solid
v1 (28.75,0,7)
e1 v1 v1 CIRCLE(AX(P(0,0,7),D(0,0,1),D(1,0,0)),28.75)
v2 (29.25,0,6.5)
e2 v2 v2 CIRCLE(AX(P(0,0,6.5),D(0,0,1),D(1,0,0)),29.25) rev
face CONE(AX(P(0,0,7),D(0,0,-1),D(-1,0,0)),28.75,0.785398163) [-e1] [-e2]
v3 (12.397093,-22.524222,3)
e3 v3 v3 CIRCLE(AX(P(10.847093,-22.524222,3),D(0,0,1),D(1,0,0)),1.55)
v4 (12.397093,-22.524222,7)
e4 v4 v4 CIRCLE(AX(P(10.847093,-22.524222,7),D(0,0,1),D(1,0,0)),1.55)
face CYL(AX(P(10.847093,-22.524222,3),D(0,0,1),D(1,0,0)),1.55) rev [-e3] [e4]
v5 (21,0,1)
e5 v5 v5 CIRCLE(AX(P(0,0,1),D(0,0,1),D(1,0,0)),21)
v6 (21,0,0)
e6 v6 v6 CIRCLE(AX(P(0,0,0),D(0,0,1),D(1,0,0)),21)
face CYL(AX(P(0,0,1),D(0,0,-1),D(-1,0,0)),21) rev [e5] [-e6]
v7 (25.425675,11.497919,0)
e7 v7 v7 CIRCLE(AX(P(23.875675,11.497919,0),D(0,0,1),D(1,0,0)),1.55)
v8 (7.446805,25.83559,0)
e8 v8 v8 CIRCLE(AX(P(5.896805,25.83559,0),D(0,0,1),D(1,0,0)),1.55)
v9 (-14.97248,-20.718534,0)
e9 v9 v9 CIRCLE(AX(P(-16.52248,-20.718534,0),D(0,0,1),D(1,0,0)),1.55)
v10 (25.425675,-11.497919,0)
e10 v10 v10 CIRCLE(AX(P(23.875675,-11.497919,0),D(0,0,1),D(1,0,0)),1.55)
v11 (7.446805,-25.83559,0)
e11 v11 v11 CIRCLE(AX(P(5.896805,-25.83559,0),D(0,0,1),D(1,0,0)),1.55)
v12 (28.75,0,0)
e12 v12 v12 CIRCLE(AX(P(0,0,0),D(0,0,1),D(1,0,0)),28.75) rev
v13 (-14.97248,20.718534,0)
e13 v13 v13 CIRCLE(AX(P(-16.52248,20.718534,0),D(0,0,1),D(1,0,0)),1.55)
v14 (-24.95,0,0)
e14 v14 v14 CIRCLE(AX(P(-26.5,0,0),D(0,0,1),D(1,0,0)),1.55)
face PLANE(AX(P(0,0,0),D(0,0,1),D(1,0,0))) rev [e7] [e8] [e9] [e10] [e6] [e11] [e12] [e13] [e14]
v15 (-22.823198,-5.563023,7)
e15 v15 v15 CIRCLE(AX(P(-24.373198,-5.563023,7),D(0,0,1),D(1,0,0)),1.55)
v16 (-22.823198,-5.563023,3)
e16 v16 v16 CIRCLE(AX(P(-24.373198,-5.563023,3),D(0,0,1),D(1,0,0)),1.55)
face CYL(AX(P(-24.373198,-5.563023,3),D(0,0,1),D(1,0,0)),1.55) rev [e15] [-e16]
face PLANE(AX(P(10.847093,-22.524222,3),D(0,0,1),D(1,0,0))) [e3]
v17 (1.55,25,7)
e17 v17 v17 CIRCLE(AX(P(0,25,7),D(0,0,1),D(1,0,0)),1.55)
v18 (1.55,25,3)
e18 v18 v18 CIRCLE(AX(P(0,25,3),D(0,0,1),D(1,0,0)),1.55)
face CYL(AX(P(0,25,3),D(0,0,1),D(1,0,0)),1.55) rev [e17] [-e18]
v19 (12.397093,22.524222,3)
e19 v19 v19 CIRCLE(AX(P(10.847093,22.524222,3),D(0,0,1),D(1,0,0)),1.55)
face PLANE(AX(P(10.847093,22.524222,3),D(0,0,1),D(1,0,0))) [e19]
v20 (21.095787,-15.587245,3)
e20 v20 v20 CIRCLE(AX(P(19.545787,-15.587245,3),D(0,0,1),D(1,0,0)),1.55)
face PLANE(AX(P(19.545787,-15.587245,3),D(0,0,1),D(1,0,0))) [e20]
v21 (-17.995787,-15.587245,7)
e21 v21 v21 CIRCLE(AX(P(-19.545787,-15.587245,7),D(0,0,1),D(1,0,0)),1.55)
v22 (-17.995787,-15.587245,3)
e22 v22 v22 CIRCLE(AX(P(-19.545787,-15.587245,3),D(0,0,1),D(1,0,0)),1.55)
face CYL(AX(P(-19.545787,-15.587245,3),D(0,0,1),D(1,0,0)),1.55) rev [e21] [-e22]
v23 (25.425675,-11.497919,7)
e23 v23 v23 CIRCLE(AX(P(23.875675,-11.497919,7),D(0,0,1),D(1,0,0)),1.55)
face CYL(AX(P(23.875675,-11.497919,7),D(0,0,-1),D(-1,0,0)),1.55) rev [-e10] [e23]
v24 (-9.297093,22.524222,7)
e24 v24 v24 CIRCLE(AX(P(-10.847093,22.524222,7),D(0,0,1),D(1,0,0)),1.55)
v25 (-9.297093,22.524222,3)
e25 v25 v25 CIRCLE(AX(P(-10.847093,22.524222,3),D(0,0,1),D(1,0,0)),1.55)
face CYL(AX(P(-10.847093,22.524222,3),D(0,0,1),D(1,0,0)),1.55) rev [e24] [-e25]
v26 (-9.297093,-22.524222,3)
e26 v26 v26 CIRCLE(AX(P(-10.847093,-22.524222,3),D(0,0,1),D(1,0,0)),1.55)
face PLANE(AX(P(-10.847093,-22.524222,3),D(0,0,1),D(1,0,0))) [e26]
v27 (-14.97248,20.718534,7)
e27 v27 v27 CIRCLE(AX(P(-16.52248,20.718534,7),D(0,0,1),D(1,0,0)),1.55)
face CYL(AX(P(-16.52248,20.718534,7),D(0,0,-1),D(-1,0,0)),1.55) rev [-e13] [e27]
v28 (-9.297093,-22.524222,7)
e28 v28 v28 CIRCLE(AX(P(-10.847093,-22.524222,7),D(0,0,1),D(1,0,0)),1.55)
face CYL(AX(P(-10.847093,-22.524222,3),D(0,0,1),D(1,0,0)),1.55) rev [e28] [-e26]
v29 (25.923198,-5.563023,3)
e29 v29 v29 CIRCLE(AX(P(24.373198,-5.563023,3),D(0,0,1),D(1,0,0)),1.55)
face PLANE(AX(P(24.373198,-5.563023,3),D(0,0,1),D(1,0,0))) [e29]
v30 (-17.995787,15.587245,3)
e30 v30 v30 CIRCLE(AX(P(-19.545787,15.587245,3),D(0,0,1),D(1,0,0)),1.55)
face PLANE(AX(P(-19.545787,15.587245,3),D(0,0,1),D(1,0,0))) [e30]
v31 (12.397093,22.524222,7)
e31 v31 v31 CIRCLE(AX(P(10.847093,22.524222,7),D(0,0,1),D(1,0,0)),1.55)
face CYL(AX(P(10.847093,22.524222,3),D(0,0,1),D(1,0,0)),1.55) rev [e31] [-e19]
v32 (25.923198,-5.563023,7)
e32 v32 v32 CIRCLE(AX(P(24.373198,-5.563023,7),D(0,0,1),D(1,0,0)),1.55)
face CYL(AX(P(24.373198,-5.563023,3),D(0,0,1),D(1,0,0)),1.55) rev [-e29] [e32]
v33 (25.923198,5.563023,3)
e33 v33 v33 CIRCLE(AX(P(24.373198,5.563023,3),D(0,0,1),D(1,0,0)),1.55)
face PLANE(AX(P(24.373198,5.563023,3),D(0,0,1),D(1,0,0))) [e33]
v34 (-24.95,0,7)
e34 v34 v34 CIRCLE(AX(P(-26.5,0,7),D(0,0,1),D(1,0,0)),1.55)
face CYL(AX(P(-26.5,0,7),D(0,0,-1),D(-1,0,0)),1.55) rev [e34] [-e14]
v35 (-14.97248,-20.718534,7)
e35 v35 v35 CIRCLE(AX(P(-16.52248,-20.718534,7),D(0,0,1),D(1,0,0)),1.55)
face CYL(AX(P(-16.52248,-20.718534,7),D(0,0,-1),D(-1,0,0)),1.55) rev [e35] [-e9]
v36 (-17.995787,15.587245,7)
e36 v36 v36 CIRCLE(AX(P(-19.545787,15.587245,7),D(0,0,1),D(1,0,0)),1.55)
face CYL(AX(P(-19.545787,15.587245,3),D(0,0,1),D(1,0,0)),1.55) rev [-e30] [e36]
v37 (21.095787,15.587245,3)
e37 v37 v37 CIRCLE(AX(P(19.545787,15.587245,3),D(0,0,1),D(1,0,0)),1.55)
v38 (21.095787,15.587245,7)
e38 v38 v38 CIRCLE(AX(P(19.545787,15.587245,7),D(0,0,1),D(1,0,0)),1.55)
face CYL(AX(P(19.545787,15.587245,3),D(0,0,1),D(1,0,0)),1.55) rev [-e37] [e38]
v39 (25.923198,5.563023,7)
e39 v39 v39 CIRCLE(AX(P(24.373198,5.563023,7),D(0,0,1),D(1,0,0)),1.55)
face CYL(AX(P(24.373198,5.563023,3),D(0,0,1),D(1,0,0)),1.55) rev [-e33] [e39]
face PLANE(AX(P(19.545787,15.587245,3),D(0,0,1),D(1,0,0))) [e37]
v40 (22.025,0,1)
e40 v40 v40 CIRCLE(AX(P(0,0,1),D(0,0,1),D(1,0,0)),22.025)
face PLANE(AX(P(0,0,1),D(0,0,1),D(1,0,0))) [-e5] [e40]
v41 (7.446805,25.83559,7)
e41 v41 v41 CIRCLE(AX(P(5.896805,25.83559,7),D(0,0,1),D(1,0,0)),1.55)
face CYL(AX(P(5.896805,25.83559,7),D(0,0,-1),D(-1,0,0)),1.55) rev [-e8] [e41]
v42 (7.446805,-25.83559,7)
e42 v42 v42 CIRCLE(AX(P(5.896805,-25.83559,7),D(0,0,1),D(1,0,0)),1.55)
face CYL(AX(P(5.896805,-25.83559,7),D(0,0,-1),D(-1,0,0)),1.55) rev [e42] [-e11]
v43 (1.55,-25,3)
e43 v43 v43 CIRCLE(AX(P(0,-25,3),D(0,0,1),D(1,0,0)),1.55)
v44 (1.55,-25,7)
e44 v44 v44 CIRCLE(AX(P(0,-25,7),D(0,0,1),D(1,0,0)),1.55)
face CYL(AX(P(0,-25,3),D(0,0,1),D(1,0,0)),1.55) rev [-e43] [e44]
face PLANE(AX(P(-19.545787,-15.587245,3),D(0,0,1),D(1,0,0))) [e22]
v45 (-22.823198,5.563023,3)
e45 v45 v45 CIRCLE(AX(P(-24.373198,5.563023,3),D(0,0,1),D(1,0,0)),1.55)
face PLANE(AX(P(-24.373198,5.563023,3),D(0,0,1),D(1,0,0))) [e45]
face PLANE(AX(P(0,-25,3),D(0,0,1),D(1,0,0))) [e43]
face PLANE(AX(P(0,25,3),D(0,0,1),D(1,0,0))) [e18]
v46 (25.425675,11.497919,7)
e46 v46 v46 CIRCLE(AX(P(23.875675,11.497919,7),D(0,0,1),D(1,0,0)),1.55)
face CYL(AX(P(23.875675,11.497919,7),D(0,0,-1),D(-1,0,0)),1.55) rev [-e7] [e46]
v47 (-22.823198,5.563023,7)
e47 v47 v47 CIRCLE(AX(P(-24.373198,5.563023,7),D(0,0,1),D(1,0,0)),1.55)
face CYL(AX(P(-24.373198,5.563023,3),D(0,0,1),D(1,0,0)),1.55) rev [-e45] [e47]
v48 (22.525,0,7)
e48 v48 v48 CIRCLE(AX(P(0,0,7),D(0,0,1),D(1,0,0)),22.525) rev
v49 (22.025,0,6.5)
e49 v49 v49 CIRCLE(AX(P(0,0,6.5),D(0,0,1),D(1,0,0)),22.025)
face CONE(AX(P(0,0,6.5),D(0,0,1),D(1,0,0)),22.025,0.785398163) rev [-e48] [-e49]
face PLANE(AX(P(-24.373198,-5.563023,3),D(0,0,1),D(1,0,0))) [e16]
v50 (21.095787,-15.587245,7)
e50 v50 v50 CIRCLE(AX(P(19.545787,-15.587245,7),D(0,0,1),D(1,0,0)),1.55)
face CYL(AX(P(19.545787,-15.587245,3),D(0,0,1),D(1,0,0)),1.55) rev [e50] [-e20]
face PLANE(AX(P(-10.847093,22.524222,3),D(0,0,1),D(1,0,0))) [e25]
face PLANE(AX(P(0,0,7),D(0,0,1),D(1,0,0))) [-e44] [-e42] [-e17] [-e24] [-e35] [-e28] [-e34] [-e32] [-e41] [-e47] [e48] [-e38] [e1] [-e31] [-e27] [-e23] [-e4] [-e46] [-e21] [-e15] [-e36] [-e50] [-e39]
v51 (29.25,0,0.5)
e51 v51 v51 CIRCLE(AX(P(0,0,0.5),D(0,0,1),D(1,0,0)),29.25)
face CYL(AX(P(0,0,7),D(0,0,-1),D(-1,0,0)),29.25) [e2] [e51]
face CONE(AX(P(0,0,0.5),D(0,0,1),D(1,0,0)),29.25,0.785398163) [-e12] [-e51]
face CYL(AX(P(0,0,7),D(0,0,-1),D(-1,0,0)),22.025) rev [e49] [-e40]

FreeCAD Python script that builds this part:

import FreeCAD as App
import Part
import Sketcher
Q = App.Units.Quantity


def edges_at(feature, points):
    """Names of the edges that pass closest to the given points."""
    edges = feature.Shape.Edges
    near = lambda p: min(range(len(edges)), key=lambda i: edges[i].distToShape(Part.Vertex(*p))[0])
    return sorted({f"Edge{near(p) + 1}" for p in points})

doc = App.newDocument("Part")
body = doc.addObject("PartDesign::Body", "Body")

sketch1 = body.newObject("Sketcher::SketchObject", "Sketch")
sketch1.AttachmentSupport = (doc.getObject("XY_Plane"), [""])
sketch1.MapMode = "FlatFace"
sketch1.addGeometry(Part.Circle(App.Vector(0, 0, 0), App.Vector(0, 0, 1), 29), False)
sketch1.addGeometry(Part.Circle(App.Vector(0, 0, 0), App.Vector(0, 0, 1), 22), False)
sketch1.addConstraint(Sketcher.Constraint("Coincident", 0, 3, -1, 1))
sketch1.addConstraint(Sketcher.Constraint("Coincident", 1, 3, -1, 1))
sketch1.addConstraint(Sketcher.Constraint("Diameter", 0, Q("58.5 mm")))
sketch1.addConstraint(Sketcher.Constraint("Diameter", 1, Q("44.05 mm")))
pad1 = body.newObject("PartDesign::Pad", "Pad")
pad1.Profile = sketch1
pad1.Length = 7

sketch2 = body.newObject("Sketcher::SketchObject", "Sketch001")
sketch2.AttachmentSupport = (doc.getObject("XY_Plane"), [""])
sketch2.MapMode = "FlatFace"
sketch2.AttachmentOffset = App.Placement(App.Vector(0, 0, 7), App.Rotation())
sketch2.addGeometry(Part.Circle(App.Vector(0, 25, 0), App.Vector(0, 0, 1), 1.6), False)
sketch2.addGeometry(Part.Circle(App.Vector(10.8, 22.5, 0), App.Vector(0, 0, 1), 1.6), False)
sketch2.addGeometry(Part.Circle(App.Vector(19.5, 15.6, 0), App.Vector(0, 0, 1), 1.6), False)
sketch2.addGeometry(Part.Circle(App.Vector(24.4, 5.6, 0), App.Vector(0, 0, 1), 1.6), False)
sketch2.addGeometry(Part.Circle(App.Vector(24.4, -5.6, 0), App.Vector(0, 0, 1), 1.6), False)
sketch2.addGeometry(Part.Circle(App.Vector(19.5, -15.6, 0), App.Vector(0, 0, 1), 1.6), False)
sketch2.addGeometry(Part.Circle(App.Vector(10.8, -22.5, 0), App.Vector(0, 0, 1), 1.6), False)
sketch2.addGeometry(Part.Circle(App.Vector(0, -25, 0), App.Vector(0, 0, 1), 1.6), False)
sketch2.addGeometry(Part.Circle(App.Vector(-10.8, -22.5, 0), App.Vector(0, 0, 1), 1.6), False)
sketch2.addGeometry(Part.Circle(App.Vector(-19.5, -15.6, 0), App.Vector(0, 0, 1), 1.6), False)
sketch2.addGeometry(Part.Circle(App.Vector(-24.4, -5.6, 0), App.Vector(0, 0, 1), 1.6), False)
sketch2.addGeometry(Part.Circle(App.Vector(-24.4, 5.6, 0), App.Vector(0, 0, 1), 1.6), False)
sketch2.addGeometry(Part.Circle(App.Vector(-19.5, 15.6, 0), App.Vector(0, 0, 1), 1.6), False)
sketch2.addGeometry(Part.Circle(App.Vector(-10.8, 22.5, 0), App.Vector(0, 0, 1), 1.6), False)
sketch2.addConstraint(Sketcher.Constraint("Equal", 0, 1))
sketch2.addConstraint(Sketcher.Constraint("Equal", 1, 2))
sketch2.addConstraint(Sketcher.Constraint("Equal", 2, 3))
sketch2.addConstraint(Sketcher.Constraint("Equal", 3, 4))
sketch2.addConstraint(Sketcher.Constraint("Equal", 4, 5))
sketch2.addConstraint(Sketcher.Constraint("Equal", 5, 6))
sketch2.addConstraint(Sketcher.Constraint("Equal", 6, 7))
sketch2.addConstraint(Sketcher.Constraint("Equal", 7, 8))
sketch2.addConstraint(Sketcher.Constraint("Equal", 8, 9))
sketch2.addConstraint(Sketcher.Constraint("Equal", 9, 10))
sketch2.addConstraint(Sketcher.Constraint("Equal", 10, 11))
sketch2.addConstraint(Sketcher.Constraint("Equal", 11, 12))
sketch2.addConstraint(Sketcher.Constraint("Equal", 12, 13))
sketch2.addConstraint(Sketcher.Constraint("Symmetric", 0, 3, 7, 3, -1, 1))
sketch2.addConstraint(Sketcher.Constraint("Symmetric", 1, 3, 8, 3, -1, 1))
sketch2.addConstraint(Sketcher.Constraint("Symmetric", 2, 3, 9, 3, -1, 1))
sketch2.addConstraint(Sketcher.Constraint("Symmetric", 3, 3, 10, 3, -1, 1))
sketch2.addConstraint(Sketcher.Constraint("Symmetric", 4, 3, 11, 3, -1, 1))
sketch2.addConstraint(Sketcher.Constraint("Symmetric", 5, 3, 12, 3, -1, 1))
sketch2.addConstraint(Sketcher.Constraint("Symmetric", 6, 3, 13, 3, -1, 1))
sketch2.addConstraint(Sketcher.Constraint("Symmetric", 6, 3, 8, 3, -2))
sketch2.addConstraint(Sketcher.Constraint("Symmetric", 5, 3, 9, 3, -2))
sketch2.addConstraint(Sketcher.Constraint("Symmetric", 4, 3, 10, 3, -2))
sketch2.addConstraint(Sketcher.Constraint("PointOnObject", 0, 3, -2))
sketch2.addConstraint(Sketcher.Constraint("Diameter", 0, Q("3.1 mm")))
sketch2.addConstraint(Sketcher.Constraint("DistanceY", -1, 1, 0, 3, Q("25 mm")))
sketch2.addConstraint(Sketcher.Constraint("DistanceY", 3, 3, 1, 3, Q("16.961198 mm")))
sketch2.addConstraint(Sketcher.Constraint("DistanceY", -1, 1, 1, 3, Q("22.524222 mm")))
sketch2.addConstraint(Sketcher.Constraint("DistanceX", 2, 3, 3, 3, Q("4.827411 mm")))
sketch2.addConstraint(Sketcher.Constraint("DistanceY", 3, 3, 2, 3, Q("10.024222 mm")))
sketch2.addConstraint(Sketcher.Constraint("DistanceX", 8, 3, 5, 3, Q("30.392881 mm")))
sketch2.addConstraint(Sketcher.Constraint("DistanceX", -1, 1, 1, 3, Q("10.847093 mm")))
pocket1 = body.newObject("PartDesign::Pocket", "Pocket")
pocket1.Profile = sketch2
pocket1.Length = 4

sketch3 = body.newObject("Sketcher::SketchObject", "Sketch002")
sketch3.AttachmentSupport = (doc.getObject("XY_Plane"), [""])
sketch3.MapMode = "FlatFace"
sketch3.addGeometry(Part.Circle(App.Vector(0, 0, 0), App.Vector(0, 0, 1), 22), False)
sketch3.addGeometry(Part.Circle(App.Vector(0, 0, 0), App.Vector(0, 0, 1), 21), False)
sketch3.addConstraint(Sketcher.Constraint("Coincident", 0, 3, -1, 1))
sketch3.addConstraint(Sketcher.Constraint("Coincident", 1, 3, -1, 1))
sketch3.addConstraint(Sketcher.Constraint("Diameter", 1, Q("42 mm")))
sketch3.addConstraint(Sketcher.Constraint("Diameter", 0, Q("44.5 mm")))
pad2 = body.newObject("PartDesign::Pad", "Pad001")
pad2.Profile = sketch3
pad2.Length = 1

sketch4 = body.newObject("Sketcher::SketchObject", "Sketch003")
sketch4.AttachmentSupport = (doc.getObject("XY_Plane"), [""])
sketch4.MapMode = "FlatFace"
sketch4.addGeometry(Part.Circle(App.Vector(5.9, 25.8, 0), App.Vector(0, 0, 1), 1.6), False)
sketch4.addGeometry(Part.Circle(App.Vector(23.9, 11.5, 0), App.Vector(0, 0, 1), 1.6), False)
sketch4.addGeometry(Part.Circle(App.Vector(23.9, -11.5, 0), App.Vector(0, 0, 1), 1.6), False)
sketch4.addGeometry(Part.Circle(App.Vector(5.9, -25.8, 0), App.Vector(0, 0, 1), 1.6), False)
sketch4.addGeometry(Part.Circle(App.Vector(-16.5, -20.7, 0), App.Vector(0, 0, 1), 1.6), False)
sketch4.addGeometry(Part.Circle(App.Vector(-26.5, 0, 0), App.Vector(0, 0, 1), 1.6), False)
sketch4.addGeometry(Part.Circle(App.Vector(-16.5, 20.7, 0), App.Vector(0, 0, 1), 1.6), False)
sketch4.addConstraint(Sketcher.Constraint("Equal", 0, 1))
sketch4.addConstraint(Sketcher.Constraint("Equal", 1, 2))
sketch4.addConstraint(Sketcher.Constraint("Equal", 2, 3))
sketch4.addConstraint(Sketcher.Constraint("Equal", 3, 4))
sketch4.addConstraint(Sketcher.Constraint("Equal", 4, 5))
sketch4.addConstraint(Sketcher.Constraint("Equal", 5, 6))
sketch4.addConstraint(Sketcher.Constraint("Symmetric", 1, 3, 2, 3, -1))
sketch4.addConstraint(Sketcher.Constraint("Symmetric", 0, 3, 3, 3, -1))
sketch4.addConstraint(Sketcher.Constraint("Symmetric", 4, 3, 6, 3, -1))
sketch4.addConstraint(Sketcher.Constraint("PointOnObject", 5, 3, -1))
sketch4.addConstraint(Sketcher.Constraint("Diameter", 0, Q("3.1 mm")))
sketch4.addConstraint(Sketcher.Constraint("DistanceX", 5, 3, -1, 1, Q("26.5 mm")))
sketch4.addConstraint(Sketcher.Constraint("DistanceY", -1, 1, 0, 3, Q("25.83559 mm")))
sketch4.addConstraint(Sketcher.Constraint("DistanceY", -1, 1, 1, 3, Q("11.497919 mm")))
sketch4.addConstraint(Sketcher.Constraint("DistanceX", 4, 3, -1, 1, Q("16.52248 mm")))
sketch4.addConstraint(Sketcher.Constraint("DistanceX", 0, 3, 1, 3, Q("17.97887 mm")))
sketch4.addConstraint(Sketcher.Constraint("DistanceY", 4, 3, 6, 3, Q("41.437069 mm")))
sketch4.addConstraint(Sketcher.Constraint("DistanceX", -1, 1, 0, 3, Q("5.896805 mm")))
pocket2 = body.newObject("PartDesign::Pocket", "Pocket001")
pocket2.Profile = sketch4
pocket2.Type = "ThroughAll"
pocket2.Reversed = True
doc.recompute()

chamfer = body.newObject("PartDesign::Chamfer", "Chamfer")
chamfer.Base = (pocket2, edges_at(pocket2, [(-22.025, 0, 7), (-29.25, 0, 0), (-29.25, 0, 7)]))
chamfer.Size = 0.5

doc.recompute()
